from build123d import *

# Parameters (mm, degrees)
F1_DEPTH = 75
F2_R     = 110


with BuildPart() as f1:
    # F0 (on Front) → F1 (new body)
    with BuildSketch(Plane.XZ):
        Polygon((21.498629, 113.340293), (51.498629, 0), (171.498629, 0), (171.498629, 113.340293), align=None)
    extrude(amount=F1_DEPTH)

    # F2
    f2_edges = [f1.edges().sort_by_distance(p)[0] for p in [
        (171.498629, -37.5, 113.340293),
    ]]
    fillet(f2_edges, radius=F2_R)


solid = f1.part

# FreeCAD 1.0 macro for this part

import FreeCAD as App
import Part
import Sketcher
from FreeCAD import Vector
Q = App.Units.Quantity


def edges_at(feature, points):
    """Names of the edges that pass closest to the given points."""
    edges = feature.Shape.Edges
    near = lambda p: min(range(len(edges)), key=lambda i: edges[i].distToShape(Part.Vertex(*p))[0])
    return sorted({f"Edge{near(p) + 1}" for p in points})


def add_polygon(sketch, points):
    """Adds a closed chain of lines whose ends are joined by coincident constraints."""
    first, n = sketch.GeometryCount, len(points)
    for a, b in zip(points, points[1:] + points[:1]):
        sketch.addGeometry(Part.LineSegment(App.Vector(*a, 0), App.Vector(*b, 0)), False)
    for i in range(n):
        sketch.addConstraint(Sketcher.Constraint("Coincident", first + i, 2, first + (i + 1) % n, 1))

doc = App.newDocument("Part")
body = doc.addObject("PartDesign::Body", "Body")

# Sketch on XZ plane
sketch1 = doc.addObject("Sketcher::SketchObject", "Sketch")
body.addObject(sketch1)
sketch1.AttachmentSupport = (doc.XZ_Plane, [""])
sketch1.MapMode = "FlatFace"
add_polygon(sketch1, [(21, 113), (51, 0), (171, 0), (171, 113)])  # lines 0-3
sketch1.addConstraint(Sketcher.Constraint("Horizontal", 1))
sketch1.addConstraint(Sketcher.Constraint("Vertical", 2))
sketch1.addConstraint(Sketcher.Constraint("Horizontal", 3))
sketch1.addConstraint(Sketcher.Constraint("PointOnObject", 0, 2, -1))
sketch1.addConstraint(Sketcher.Constraint("DistanceX", 1, 1, 1, 2, Q("120 mm")))
sketch1.addConstraint(Sketcher.Constraint("DistanceX", 3, 2, 3, 1, Q("150 mm")))
sketch1.addConstraint(Sketcher.Constraint("Distance", 0, Q("117.243431 mm")))
sketch1.addConstraint(Sketcher.Constraint("DistanceX", -1, 1, 0, 2, Q("51.498629 mm")))
pad1 = doc.addObject("PartDesign::Pad", "Pad")
body.addObject(pad1)
pad1.Profile = sketch1
pad1.Length = 75
doc.recompute()

fillet = doc.addObject("PartDesign::Fillet", "Fillet")
body.addObject(fillet)
fillet.Base = (pad1, edges_at(pad1, [(171.499, -37.5, 113.34)]))
fillet.Radius = 110

doc.recompute()
